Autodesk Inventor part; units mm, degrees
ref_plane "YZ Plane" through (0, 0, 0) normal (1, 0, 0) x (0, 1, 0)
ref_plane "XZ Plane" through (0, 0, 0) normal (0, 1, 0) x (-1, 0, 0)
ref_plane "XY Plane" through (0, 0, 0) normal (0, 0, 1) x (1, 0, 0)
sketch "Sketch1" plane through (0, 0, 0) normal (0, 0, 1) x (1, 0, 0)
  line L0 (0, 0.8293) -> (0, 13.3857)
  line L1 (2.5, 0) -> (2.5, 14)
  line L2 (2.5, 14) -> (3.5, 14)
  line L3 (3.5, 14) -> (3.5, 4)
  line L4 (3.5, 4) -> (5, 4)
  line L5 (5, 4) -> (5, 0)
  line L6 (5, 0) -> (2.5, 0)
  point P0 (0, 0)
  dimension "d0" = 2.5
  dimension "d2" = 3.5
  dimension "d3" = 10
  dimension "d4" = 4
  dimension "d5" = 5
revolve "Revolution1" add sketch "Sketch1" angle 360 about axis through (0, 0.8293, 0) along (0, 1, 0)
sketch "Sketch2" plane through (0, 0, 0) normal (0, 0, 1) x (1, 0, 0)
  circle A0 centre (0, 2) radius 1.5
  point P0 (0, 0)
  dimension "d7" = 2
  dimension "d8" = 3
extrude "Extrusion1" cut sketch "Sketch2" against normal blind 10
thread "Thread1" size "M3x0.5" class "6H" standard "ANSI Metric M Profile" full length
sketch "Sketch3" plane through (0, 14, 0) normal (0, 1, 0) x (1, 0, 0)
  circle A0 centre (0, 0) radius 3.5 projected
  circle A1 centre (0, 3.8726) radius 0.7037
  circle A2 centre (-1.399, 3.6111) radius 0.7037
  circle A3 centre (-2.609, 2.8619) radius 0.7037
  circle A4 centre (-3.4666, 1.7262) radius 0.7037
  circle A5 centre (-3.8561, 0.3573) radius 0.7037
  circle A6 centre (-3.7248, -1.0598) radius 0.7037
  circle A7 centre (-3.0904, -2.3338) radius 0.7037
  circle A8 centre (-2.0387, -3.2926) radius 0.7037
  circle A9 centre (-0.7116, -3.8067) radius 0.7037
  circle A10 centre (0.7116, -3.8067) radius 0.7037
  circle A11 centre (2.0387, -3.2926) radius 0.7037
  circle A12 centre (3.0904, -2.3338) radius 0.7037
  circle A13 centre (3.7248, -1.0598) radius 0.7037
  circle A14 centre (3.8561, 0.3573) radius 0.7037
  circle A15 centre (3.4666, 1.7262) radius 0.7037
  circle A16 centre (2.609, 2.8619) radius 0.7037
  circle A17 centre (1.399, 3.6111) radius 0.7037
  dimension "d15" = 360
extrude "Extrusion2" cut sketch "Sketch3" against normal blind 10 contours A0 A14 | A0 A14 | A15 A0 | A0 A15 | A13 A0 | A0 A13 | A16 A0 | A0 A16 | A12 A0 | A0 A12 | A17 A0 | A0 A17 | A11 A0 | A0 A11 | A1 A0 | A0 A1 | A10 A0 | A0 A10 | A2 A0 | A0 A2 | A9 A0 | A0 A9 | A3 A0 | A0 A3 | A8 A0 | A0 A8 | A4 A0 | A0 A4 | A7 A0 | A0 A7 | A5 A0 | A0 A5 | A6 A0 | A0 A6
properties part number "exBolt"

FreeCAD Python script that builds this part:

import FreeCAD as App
import Part
import Sketcher
from FreeCAD import Vector
Q = App.Units.Quantity

doc = App.newDocument("Part")
params = doc.addObject("Spreadsheet::Sheet", "Params")
for row, (alias, value) in enumerate([
    ("sketch1_height", "4 mm"),
    ("sketch1_height2", "10 mm"),
    ("sketch1_width", "2.5 mm"),
    ("revolution_angle", "360 deg"),
    ("sketch2_diameter", "3 mm"),
    ("pocket1_length", "10 mm"),
    ("pocket2_length", "10 mm"),
], start=1):
    params.set(f"A{row}", alias)
    params.set(f"B{row}", "=" + value)
    params.setAlias(f"B{row}", alias)

body = doc.addObject("PartDesign::Body", "Body")

sketch1 = doc.addObject("Sketcher::SketchObject", "Sketch")
body.addObject(sketch1)
sketch1.AttachmentSupport = (doc.XY_Plane, [""])
sketch1.MapMode = "FlatFace"
sketch1.addGeometry(Part.LineSegment(Vector(2.5, 14, 0), Vector(2.5, 0, 0)), False)
sketch1.addGeometry(Part.LineSegment(Vector(2.5, 0, 0), Vector(5, 0, 0)), False)
sketch1.addGeometry(Part.LineSegment(Vector(5, 0, 0), Vector(5, 4, 0)), False)
sketch1.addGeometry(Part.LineSegment(Vector(5, 4, 0), Vector(3.5, 4, 0)), False)
sketch1.addGeometry(Part.LineSegment(Vector(3.5, 4, 0), Vector(3.5, 14, 0)), False)
sketch1.addGeometry(Part.LineSegment(Vector(3.5, 14, 0), Vector(2.5, 14, 0)), False)
sketch1.addConstraint(Sketcher.Constraint("Coincident", 0, 2, 1, 1))
sketch1.addConstraint(Sketcher.Constraint("Coincident", 1, 2, 2, 1))
sketch1.addConstraint(Sketcher.Constraint("Coincident", 2, 2, 3, 1))
sketch1.addConstraint(Sketcher.Constraint("Coincident", 3, 2, 4, 1))
sketch1.addConstraint(Sketcher.Constraint("Coincident", 4, 2, 5, 1))
sketch1.addConstraint(Sketcher.Constraint("Coincident", 5, 2, 0, 1))
sketch1.addConstraint(Sketcher.Constraint("Vertical", 0))
sketch1.addConstraint(Sketcher.Constraint("Horizontal", 1))
sketch1.addConstraint(Sketcher.Constraint("Vertical", 2))
sketch1.addConstraint(Sketcher.Constraint("Horizontal", 3))
sketch1.addConstraint(Sketcher.Constraint("Vertical", 4))
sketch1.addConstraint(Sketcher.Constraint("Horizontal", 5))
sketch1.addConstraint(Sketcher.Constraint("PointOnObject", 0, 2, -1))
sketch1.addConstraint(Sketcher.Constraint("DistanceY", 2, 1, 2, 2, Q("4 mm")))
sketch1.addConstraint(Sketcher.Constraint("DistanceY", 4, 1, 4, 2, Q("10 mm")))
sketch1.addConstraint(Sketcher.Constraint("DistanceX", 1, 1, 1, 2, Q("2.5 mm")))
sketch1.addConstraint(Sketcher.Constraint("DistanceX", -1, 1, 1, 2, Q("5 mm")))
sketch1.addConstraint(Sketcher.Constraint("DistanceX", -1, 1, 3, 2, Q("3.5 mm")))
sketch1.setExpression("Constraints[13]", "Params.sketch1_height")
sketch1.setExpression("Constraints[14]", "Params.sketch1_height2")
sketch1.setExpression("Constraints[15]", "Params.sketch1_width")
revolution = doc.addObject("PartDesign::Revolution", "Revolution")
body.addObject(revolution)
revolution.Profile = sketch1
revolution.ReferenceAxis = (sketch1, ["V_Axis"])
revolution.setExpression("Angle", "Params.revolution_angle")

sketch2 = doc.addObject("Sketcher::SketchObject", "Sketch001")
body.addObject(sketch2)
sketch2.AttachmentSupport = (doc.XY_Plane, [""])
sketch2.MapMode = "FlatFace"
sketch2.addGeometry(Part.Circle(Vector(0, 2, 0), Vector(0, 0, 1), 1.5), False)
sketch2.addConstraint(Sketcher.Constraint("PointOnObject", 0, 3, -2))
sketch2.addConstraint(Sketcher.Constraint("Diameter", 0, Q("3 mm")))
sketch2.addConstraint(Sketcher.Constraint("DistanceY", -1, 1, 0, 3, Q("2 mm")))
sketch2.setExpression("Constraints[1]", "Params.sketch2_diameter")
pocket1 = doc.addObject("PartDesign::Pocket", "Pocket")
body.addObject(pocket1)
pocket1.Profile = sketch2
pocket1.setExpression("Length", "Params.pocket1_length")

sketch3 = doc.addObject("Sketcher::SketchObject", "Sketch002")
body.addObject(sketch3)
sketch3.AttachmentSupport = (doc.XZ_Plane, [""])
sketch3.MapMode = "FlatFace"
sketch3.AttachmentOffset = App.Placement(Vector(0, 0, -14), App.Rotation())
sketch3.addGeometry(Part.Circle(Vector(3.9, -0.4, 0), Vector(0, 0, 1), 0.7), False)
sketch3.addGeometry(Part.Circle(Vector(3.5, -1.7, 0), Vector(0, 0, 1), 0.7), False)
sketch3.addGeometry(Part.Circle(Vector(3.7, 1.1, 0), Vector(0, 0, 1), 0.7), False)
sketch3.addGeometry(Part.Circle(Vector(2.6, -2.9, 0), Vector(0, 0, 1), 0.7), False)
sketch3.addGeometry(Part.Circle(Vector(3.1, 2.3, 0), Vector(0, 0, 1), 0.7), False)
sketch3.addGeometry(Part.Circle(Vector(1.4, -3.6, 0), Vector(0, 0, 1), 0.7), False)
sketch3.addGeometry(Part.Circle(Vector(2, 3.3, 0), Vector(0, 0, 1), 0.7), False)
sketch3.addGeometry(Part.Circle(Vector(0, -3.9, 0), Vector(0, 0, 1), 0.7), False)
sketch3.addGeometry(Part.Circle(Vector(0.7, 3.8, 0), Vector(0, 0, 1), 0.7), False)
sketch3.addGeometry(Part.Circle(Vector(-1.4, -3.6, 0), Vector(0, 0, 1), 0.7), False)
sketch3.addGeometry(Part.Circle(Vector(-0.7, 3.8, 0), Vector(0, 0, 1), 0.7), False)
sketch3.addGeometry(Part.Circle(Vector(-2.6, -2.9, 0), Vector(0, 0, 1), 0.7), False)
sketch3.addGeometry(Part.Circle(Vector(-2, 3.3, 0), Vector(0, 0, 1), 0.7), False)
sketch3.addGeometry(Part.Circle(Vector(-3.5, -1.7, 0), Vector(0, 0, 1), 0.7), False)
sketch3.addGeometry(Part.Circle(Vector(-3.1, 2.3, 0), Vector(0, 0, 1), 0.7), False)
sketch3.addGeometry(Part.Circle(Vector(-3.9, -0.4, 0), Vector(0, 0, 1), 0.7), False)
sketch3.addGeometry(Part.Circle(Vector(-3.7, 1.1, 0), Vector(0, 0, 1), 0.7), False)
sketch3.addConstraint(Sketcher.Constraint("Equal", 0, 1))
sketch3.addConstraint(Sketcher.Constraint("Equal", 1, 2))
sketch3.addConstraint(Sketcher.Constraint("Equal", 2, 3))
sketch3.addConstraint(Sketcher.Constraint("Equal", 3, 4))
sketch3.addConstraint(Sketcher.Constraint("Equal", 4, 5))
sketch3.addConstraint(Sketcher.Constraint("Equal", 5, 6))
sketch3.addConstraint(Sketcher.Constraint("Equal", 6, 7))
sketch3.addConstraint(Sketcher.Constraint("Equal", 7, 8))
sketch3.addConstraint(Sketcher.Constraint("Equal", 8, 9))
sketch3.addConstraint(Sketcher.Constraint("Equal", 9, 10))
sketch3.addConstraint(Sketcher.Constraint("Equal", 10, 11))
sketch3.addConstraint(Sketcher.Constraint("Equal", 11, 12))
sketch3.addConstraint(Sketcher.Constraint("Equal", 12, 13))
sketch3.addConstraint(Sketcher.Constraint("Equal", 13, 14))
sketch3.addConstraint(Sketcher.Constraint("Equal", 14, 15))
sketch3.addConstraint(Sketcher.Constraint("Equal", 15, 16))
sketch3.addConstraint(Sketcher.Constraint("Symmetric", 5, 3, 9, 3, -2))
sketch3.addConstraint(Sketcher.Constraint("Symmetric", 8, 3, 10, 3, -2))
sketch3.addConstraint(Sketcher.Constraint("Symmetric", 3, 3, 11, 3, -2))
sketch3.addConstraint(Sketcher.Constraint("Symmetric", 6, 3, 12, 3, -2))
sketch3.addConstraint(Sketcher.Constraint("Symmetric", 1, 3, 13, 3, -2))
sketch3.addConstraint(Sketcher.Constraint("Symmetric", 4, 3, 14, 3, -2))
sketch3.addConstraint(Sketcher.Constraint("Symmetric", 0, 3, 15, 3, -2))
sketch3.addConstraint(Sketcher.Constraint("Symmetric", 2, 3, 16, 3, -2))
sketch3.addConstraint(Sketcher.Constraint("PointOnObject", 7, 3, -2))
sketch3.addConstraint(Sketcher.Constraint("Diameter", 0, Q("1.4074 mm")))
sketch3.addConstraint(Sketcher.Constraint("DistanceY", 1, 3, 4, 3, Q("4.06 mm")))
sketch3.addConstraint(Sketcher.Constraint("DistanceX", 5, 3, 3, 3, Q("1.21 mm")))
sketch3.addConstraint(Sketcher.Constraint("DistanceY", 0, 3, 6, 3, Q("3.65 mm")))
sketch3.addConstraint(Sketcher.Constraint("DistanceX", -1, 1, 0, 3, Q("3.856 mm")))
sketch3.addConstraint(Sketcher.Constraint("DistanceX", -1, 1, 3, 3, Q("2.609 mm")))
sketch3.addConstraint(Sketcher.Constraint("DistanceY", 3, 3, -1, 1, Q("2.862 mm")))
sketch3.addConstraint(Sketcher.Constraint("DistanceY", 5, 3, -1, 1, Q("3.611 mm")))
sketch3.addConstraint(Sketcher.Constraint("DistanceY", 1, 3, 0, 3, Q("1.369 mm")))
sketch3.addConstraint(Sketcher.Constraint("DistanceY", 0, 3, 2, 3, Q("1.417 mm")))
sketch3.addConstraint(Sketcher.Constraint("DistanceY", 5, 3, 1, 3, Q("1.885 mm")))
sketch3.addConstraint(Sketcher.Constraint("DistanceX", 6, 3, 2, 3, Q("1.686 mm")))
sketch3.addConstraint(Sketcher.Constraint("DistanceX", 6, 3, 1, 3, Q("1.428 mm")))
sketch3.addConstraint(Sketcher.Constraint("DistanceX", 8, 3, 6, 3, Q("1.327 mm")))
sketch3.addConstraint(Sketcher.Constraint("DistanceY", 6, 3, 8, 3, Q("0.514 mm")))
sketch3.addConstraint(Sketcher.Constraint("DistanceX", 10, 3, 4, 3, Q("3.802 mm")))
sketch3.addConstraint(Sketcher.Constraint("DistanceX", -1, 1, 1, 3, Q("3.4666 mm")))
sketch3.addConstraint(Sketcher.Constraint("DistanceY", 7, 3, -1, 1, Q("3.8726 mm")))
pocket2 = doc.addObject("PartDesign::Pocket", "Pocket001")
body.addObject(pocket2)
pocket2.Profile = sketch3
pocket2.setExpression("Length", "Params.pocket2_length")
pocket2.Reversed = True

doc.recompute()
